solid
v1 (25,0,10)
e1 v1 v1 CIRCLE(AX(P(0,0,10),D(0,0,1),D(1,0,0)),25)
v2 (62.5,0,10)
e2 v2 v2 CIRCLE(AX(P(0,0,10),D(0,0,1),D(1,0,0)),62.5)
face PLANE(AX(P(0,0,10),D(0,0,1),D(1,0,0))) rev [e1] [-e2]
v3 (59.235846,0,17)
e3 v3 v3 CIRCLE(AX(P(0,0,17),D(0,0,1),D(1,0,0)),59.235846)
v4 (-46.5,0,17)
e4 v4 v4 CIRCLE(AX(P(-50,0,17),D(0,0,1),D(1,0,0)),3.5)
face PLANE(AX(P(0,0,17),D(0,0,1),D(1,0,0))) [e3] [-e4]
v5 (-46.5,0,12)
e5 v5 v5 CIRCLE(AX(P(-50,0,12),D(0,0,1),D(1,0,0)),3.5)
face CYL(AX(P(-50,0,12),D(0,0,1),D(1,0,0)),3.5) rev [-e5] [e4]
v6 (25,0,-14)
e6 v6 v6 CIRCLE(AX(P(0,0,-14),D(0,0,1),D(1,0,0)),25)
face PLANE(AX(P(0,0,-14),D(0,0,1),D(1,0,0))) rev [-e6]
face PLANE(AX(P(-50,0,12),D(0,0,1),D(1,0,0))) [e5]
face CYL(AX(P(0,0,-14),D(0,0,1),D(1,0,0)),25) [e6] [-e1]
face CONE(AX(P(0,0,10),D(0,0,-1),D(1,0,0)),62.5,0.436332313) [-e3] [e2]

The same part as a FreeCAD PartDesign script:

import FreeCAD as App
import Part
import Sketcher

V = App.Vector

doc = App.newDocument("Part")
params = doc.addObject("Spreadsheet::Sheet", "Params")
for row, (alias, value) in enumerate([
    ("sketch1_diameter", "50 mm"),
    ("pad1_length", "10 mm"),
    ("pad1_length2", "14 mm"),
    ("sketch2_diameter", "125 mm"),
    ("pad2_length", "7 mm"),
    ("pad2_taper", "-25 deg"),
    ("sketch3_diameter", "7 mm"),
    ("pocket1_length", "5 mm"),
], start=1):
    params.set(f"A{row}", alias)
    params.set(f"B{row}", "=" + value)
    params.setAlias(f"B{row}", alias)

body = doc.addObject("PartDesign::Body", "Body")

# Sketch on XY plane
sketch1 = body.newObject("Sketcher::SketchObject", "Sketch")
sketch1.AttachmentSupport = (doc.getObject("XY_Plane"), [""])
sketch1.MapMode = "FlatFace"
sketch1.addGeometry(Part.Circle(V(0, 0, 0), V(0, 0, 1), 25), False)
sketch1.addConstraint([
    Sketcher.Constraint("Coincident", 0, 3, -1, 1),
    Sketcher.Constraint("Diameter", 0, 50.0),
])
sketch1.setExpression("Constraints[1]", "Params.sketch1_diameter")
pad1 = body.newObject("PartDesign::Pad", "Pad")
pad1.Profile = sketch1
pad1.Type = "TwoLengths"
pad1.setExpression("Length", "Params.pad1_length")
pad1.setExpression("Length2", "Params.pad1_length2")

# Sketch on XY plane
sketch2 = body.newObject("Sketcher::SketchObject", "Sketch001")
sketch2.AttachmentSupport = (doc.getObject("XY_Plane"), [""])
sketch2.MapMode = "FlatFace"
sketch2.AttachmentOffset = App.Placement(V(0, 0, 10), App.Rotation())
sketch2.addGeometry(Part.Circle(V(0, 0, 0), V(0, 0, 1), 62), False)
sketch2.addConstraint([
    Sketcher.Constraint("Coincident", 0, 3, -1, 1),
    Sketcher.Constraint("Diameter", 0, 125.0),
])
sketch2.setExpression("Constraints[1]", "Params.sketch2_diameter")
pad2 = body.newObject("PartDesign::Pad", "Pad001")
pad2.Profile = sketch2
pad2.setExpression("Length", "Params.pad2_length")
pad2.setExpression("TaperAngle", "Params.pad2_taper")

# Sketch on XY plane
sketch3 = body.newObject("Sketcher::SketchObject", "Sketch002")
sketch3.AttachmentSupport = (doc.getObject("XY_Plane"), [""])
sketch3.MapMode = "FlatFace"
sketch3.AttachmentOffset = App.Placement(V(0, 0, 17), App.Rotation())
sketch3.addGeometry(Part.Circle(V(-50, 0, 0), V(0, 0, 1), 3.5), False)
sketch3.addConstraint([
    Sketcher.Constraint("PointOnObject", 0, 3, -1),
    Sketcher.Constraint("Diameter", 0, 7.0),
    Sketcher.Constraint("DistanceX", 0, 3, -1, 1, 50.0),
])
sketch3.setExpression("Constraints[1]", "Params.sketch3_diameter")
pocket1 = body.newObject("PartDesign::Pocket", "Pocket")
pocket1.Profile = sketch3
pocket1.setExpression("Length", "Params.pocket1_length")

doc.recompute()
